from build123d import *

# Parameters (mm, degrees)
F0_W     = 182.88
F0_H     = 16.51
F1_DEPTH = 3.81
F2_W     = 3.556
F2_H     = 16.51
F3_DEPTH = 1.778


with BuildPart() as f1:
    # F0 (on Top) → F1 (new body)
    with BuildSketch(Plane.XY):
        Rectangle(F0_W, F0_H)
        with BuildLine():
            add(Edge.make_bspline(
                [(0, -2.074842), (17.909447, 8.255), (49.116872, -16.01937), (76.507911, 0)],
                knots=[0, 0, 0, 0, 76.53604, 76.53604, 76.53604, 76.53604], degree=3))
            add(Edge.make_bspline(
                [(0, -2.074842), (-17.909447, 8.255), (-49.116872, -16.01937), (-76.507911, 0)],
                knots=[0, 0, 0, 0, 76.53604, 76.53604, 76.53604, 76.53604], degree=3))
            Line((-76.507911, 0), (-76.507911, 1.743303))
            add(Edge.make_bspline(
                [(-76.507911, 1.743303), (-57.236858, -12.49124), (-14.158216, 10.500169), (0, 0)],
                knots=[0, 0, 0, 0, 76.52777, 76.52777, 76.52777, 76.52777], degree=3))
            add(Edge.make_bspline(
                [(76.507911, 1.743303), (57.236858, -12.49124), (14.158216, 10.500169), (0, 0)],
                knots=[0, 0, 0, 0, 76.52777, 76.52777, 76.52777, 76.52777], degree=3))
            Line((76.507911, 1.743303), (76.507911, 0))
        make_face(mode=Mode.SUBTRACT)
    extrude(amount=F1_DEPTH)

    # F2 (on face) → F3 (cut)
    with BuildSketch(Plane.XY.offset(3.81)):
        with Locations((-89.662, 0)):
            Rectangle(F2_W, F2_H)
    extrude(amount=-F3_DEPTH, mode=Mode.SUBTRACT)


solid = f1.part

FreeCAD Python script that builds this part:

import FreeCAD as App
import Part
import Sketcher
Q = App.Units.Quantity

doc = App.newDocument("Part")
body = doc.addObject("PartDesign::Body", "Body")

sketch1 = body.newObject("Sketcher::SketchObject", "Sketch")
sketch1.AttachmentSupport = (doc.getObject("XY_Plane"), [""])
sketch1.MapMode = "FlatFace"
sketch1.addGeometry([
    Part.LineSegment(App.Vector(-91.44, 8.255, 0), App.Vector(-91.44, -8.255, 0)),
    Part.LineSegment(App.Vector(-91.44, -8.255, 0), App.Vector(91.44, -8.255, 0)),
    Part.LineSegment(App.Vector(91.44, -8.255, 0), App.Vector(91.44, 8.255, 0)),
    Part.LineSegment(App.Vector(91.44, 8.255, 0), App.Vector(-91.44, 8.255, 0)),
    Part.BSplineCurve([App.Vector(0, -2.074842, 0), App.Vector(17.909447, 8.255, 0), App.Vector(49.116872, -16.01937, 0), App.Vector(76.507911, 0, 0)], [4, 4], [0, 76.53604], False, 3, [1, 1, 1, 1], False),
    Part.BSplineCurve([App.Vector(0, -2.074842, 0), App.Vector(-17.909447, 8.255, 0), App.Vector(-49.116872, -16.01937, 0), App.Vector(-76.507911, 0, 0)], [4, 4], [0, 76.53604], False, 3, [1, 1, 1, 1], False),
    Part.LineSegment(App.Vector(-76.507911, 0, 0), App.Vector(-76.507911, 1.743303, 0)),
    Part.BSplineCurve([App.Vector(-76.507911, 1.743303, 0), App.Vector(-57.236858, -12.49124, 0), App.Vector(-14.158216, 10.500169, 0), App.Vector(0, 0, 0)], [4, 4], [0, 76.52777], False, 3, [1, 1, 1, 1], False),
    Part.BSplineCurve([App.Vector(76.507911, 1.743303, 0), App.Vector(57.236858, -12.49124, 0), App.Vector(14.158216, 10.500169, 0), App.Vector(0, 0, 0)], [4, 4], [0, 76.52777], False, 3, [1, 1, 1, 1], False),
    Part.LineSegment(App.Vector(76.507911, 1.743303, 0), App.Vector(76.507911, 0, 0)),
], False)
sketch1.addConstraint([
    Sketcher.Constraint("Block", 4),
    Sketcher.Constraint("Block", 5),
    Sketcher.Constraint("Block", 7),
    Sketcher.Constraint("Block", 8),
    Sketcher.Constraint("Coincident", 0, 2, 1, 1),
    Sketcher.Constraint("Coincident", 1, 2, 2, 1),
    Sketcher.Constraint("Coincident", 2, 2, 3, 1),
    Sketcher.Constraint("Coincident", 3, 2, 0, 1),
    Sketcher.Constraint("Coincident", 5, 2, 6, 1),
    Sketcher.Constraint("Coincident", 6, 2, 7, 1),
    Sketcher.Constraint("Coincident", 8, 1, 9, 1),
    Sketcher.Constraint("Coincident", 9, 2, 4, 2),
    Sketcher.Constraint("Vertical", 0),
    Sketcher.Constraint("Horizontal", 1),
    Sketcher.Constraint("Vertical", 2),
    Sketcher.Constraint("Horizontal", 3),
    Sketcher.Constraint("Symmetric", 0, 2, 2, 2, -1, 1),
    Sketcher.Constraint("DistanceX", 1, 1, 1, 2, Q("7.2 in")),
    Sketcher.Constraint("DistanceY", 0, 2, 0, 1, Q("0.65 in")),
])
pad1 = body.newObject("PartDesign::Pad", "Pad")
pad1.Profile = sketch1
pad1.Length = Q("0.15 in")

sketch2 = body.newObject("Sketcher::SketchObject", "Sketch001")
sketch2.AttachmentSupport = (doc.getObject("XY_Plane"), [""])
sketch2.MapMode = "FlatFace"
sketch2.AttachmentOffset = App.Placement(App.Vector(0, 0, 0.15 * 25.4), App.Rotation())
sketch2.addGeometry([
    Part.LineSegment(App.Vector(-91.4, 8.3, 0), App.Vector(-91.4, -8.3, 0)),
    Part.LineSegment(App.Vector(-91.4, -8.3, 0), App.Vector(-87.9, -8.3, 0)),
    Part.LineSegment(App.Vector(-87.9, -8.3, 0), App.Vector(-87.9, 8.3, 0)),
    Part.LineSegment(App.Vector(-87.9, 8.3, 0), App.Vector(-91.4, 8.3, 0)),
], False)
sketch2.addConstraint([
    Sketcher.Constraint("Coincident", 0, 2, 1, 1),
    Sketcher.Constraint("Coincident", 1, 2, 2, 1),
    Sketcher.Constraint("Coincident", 2, 2, 3, 1),
    Sketcher.Constraint("Coincident", 3, 2, 0, 1),
    Sketcher.Constraint("Vertical", 0),
    Sketcher.Constraint("Horizontal", 1),
    Sketcher.Constraint("Vertical", 2),
    Sketcher.Constraint("Horizontal", 3),
    Sketcher.Constraint("DistanceX", 1, 1, 1, 2, Q("0.14 in")),
    Sketcher.Constraint("DistanceY", 0, 2, 0, 1, Q("0.65 in")),
    Sketcher.Constraint("DistanceX", 0, 2, -1, 1, Q("3.6 in")),
    Sketcher.Constraint("DistanceY", 0, 2, -1, 1, Q("0.325 in")),
])
pocket1 = body.newObject("PartDesign::Pocket", "Pocket")
pocket1.Profile = sketch2
pocket1.Length = Q("0.07 in")

doc.recompute()
